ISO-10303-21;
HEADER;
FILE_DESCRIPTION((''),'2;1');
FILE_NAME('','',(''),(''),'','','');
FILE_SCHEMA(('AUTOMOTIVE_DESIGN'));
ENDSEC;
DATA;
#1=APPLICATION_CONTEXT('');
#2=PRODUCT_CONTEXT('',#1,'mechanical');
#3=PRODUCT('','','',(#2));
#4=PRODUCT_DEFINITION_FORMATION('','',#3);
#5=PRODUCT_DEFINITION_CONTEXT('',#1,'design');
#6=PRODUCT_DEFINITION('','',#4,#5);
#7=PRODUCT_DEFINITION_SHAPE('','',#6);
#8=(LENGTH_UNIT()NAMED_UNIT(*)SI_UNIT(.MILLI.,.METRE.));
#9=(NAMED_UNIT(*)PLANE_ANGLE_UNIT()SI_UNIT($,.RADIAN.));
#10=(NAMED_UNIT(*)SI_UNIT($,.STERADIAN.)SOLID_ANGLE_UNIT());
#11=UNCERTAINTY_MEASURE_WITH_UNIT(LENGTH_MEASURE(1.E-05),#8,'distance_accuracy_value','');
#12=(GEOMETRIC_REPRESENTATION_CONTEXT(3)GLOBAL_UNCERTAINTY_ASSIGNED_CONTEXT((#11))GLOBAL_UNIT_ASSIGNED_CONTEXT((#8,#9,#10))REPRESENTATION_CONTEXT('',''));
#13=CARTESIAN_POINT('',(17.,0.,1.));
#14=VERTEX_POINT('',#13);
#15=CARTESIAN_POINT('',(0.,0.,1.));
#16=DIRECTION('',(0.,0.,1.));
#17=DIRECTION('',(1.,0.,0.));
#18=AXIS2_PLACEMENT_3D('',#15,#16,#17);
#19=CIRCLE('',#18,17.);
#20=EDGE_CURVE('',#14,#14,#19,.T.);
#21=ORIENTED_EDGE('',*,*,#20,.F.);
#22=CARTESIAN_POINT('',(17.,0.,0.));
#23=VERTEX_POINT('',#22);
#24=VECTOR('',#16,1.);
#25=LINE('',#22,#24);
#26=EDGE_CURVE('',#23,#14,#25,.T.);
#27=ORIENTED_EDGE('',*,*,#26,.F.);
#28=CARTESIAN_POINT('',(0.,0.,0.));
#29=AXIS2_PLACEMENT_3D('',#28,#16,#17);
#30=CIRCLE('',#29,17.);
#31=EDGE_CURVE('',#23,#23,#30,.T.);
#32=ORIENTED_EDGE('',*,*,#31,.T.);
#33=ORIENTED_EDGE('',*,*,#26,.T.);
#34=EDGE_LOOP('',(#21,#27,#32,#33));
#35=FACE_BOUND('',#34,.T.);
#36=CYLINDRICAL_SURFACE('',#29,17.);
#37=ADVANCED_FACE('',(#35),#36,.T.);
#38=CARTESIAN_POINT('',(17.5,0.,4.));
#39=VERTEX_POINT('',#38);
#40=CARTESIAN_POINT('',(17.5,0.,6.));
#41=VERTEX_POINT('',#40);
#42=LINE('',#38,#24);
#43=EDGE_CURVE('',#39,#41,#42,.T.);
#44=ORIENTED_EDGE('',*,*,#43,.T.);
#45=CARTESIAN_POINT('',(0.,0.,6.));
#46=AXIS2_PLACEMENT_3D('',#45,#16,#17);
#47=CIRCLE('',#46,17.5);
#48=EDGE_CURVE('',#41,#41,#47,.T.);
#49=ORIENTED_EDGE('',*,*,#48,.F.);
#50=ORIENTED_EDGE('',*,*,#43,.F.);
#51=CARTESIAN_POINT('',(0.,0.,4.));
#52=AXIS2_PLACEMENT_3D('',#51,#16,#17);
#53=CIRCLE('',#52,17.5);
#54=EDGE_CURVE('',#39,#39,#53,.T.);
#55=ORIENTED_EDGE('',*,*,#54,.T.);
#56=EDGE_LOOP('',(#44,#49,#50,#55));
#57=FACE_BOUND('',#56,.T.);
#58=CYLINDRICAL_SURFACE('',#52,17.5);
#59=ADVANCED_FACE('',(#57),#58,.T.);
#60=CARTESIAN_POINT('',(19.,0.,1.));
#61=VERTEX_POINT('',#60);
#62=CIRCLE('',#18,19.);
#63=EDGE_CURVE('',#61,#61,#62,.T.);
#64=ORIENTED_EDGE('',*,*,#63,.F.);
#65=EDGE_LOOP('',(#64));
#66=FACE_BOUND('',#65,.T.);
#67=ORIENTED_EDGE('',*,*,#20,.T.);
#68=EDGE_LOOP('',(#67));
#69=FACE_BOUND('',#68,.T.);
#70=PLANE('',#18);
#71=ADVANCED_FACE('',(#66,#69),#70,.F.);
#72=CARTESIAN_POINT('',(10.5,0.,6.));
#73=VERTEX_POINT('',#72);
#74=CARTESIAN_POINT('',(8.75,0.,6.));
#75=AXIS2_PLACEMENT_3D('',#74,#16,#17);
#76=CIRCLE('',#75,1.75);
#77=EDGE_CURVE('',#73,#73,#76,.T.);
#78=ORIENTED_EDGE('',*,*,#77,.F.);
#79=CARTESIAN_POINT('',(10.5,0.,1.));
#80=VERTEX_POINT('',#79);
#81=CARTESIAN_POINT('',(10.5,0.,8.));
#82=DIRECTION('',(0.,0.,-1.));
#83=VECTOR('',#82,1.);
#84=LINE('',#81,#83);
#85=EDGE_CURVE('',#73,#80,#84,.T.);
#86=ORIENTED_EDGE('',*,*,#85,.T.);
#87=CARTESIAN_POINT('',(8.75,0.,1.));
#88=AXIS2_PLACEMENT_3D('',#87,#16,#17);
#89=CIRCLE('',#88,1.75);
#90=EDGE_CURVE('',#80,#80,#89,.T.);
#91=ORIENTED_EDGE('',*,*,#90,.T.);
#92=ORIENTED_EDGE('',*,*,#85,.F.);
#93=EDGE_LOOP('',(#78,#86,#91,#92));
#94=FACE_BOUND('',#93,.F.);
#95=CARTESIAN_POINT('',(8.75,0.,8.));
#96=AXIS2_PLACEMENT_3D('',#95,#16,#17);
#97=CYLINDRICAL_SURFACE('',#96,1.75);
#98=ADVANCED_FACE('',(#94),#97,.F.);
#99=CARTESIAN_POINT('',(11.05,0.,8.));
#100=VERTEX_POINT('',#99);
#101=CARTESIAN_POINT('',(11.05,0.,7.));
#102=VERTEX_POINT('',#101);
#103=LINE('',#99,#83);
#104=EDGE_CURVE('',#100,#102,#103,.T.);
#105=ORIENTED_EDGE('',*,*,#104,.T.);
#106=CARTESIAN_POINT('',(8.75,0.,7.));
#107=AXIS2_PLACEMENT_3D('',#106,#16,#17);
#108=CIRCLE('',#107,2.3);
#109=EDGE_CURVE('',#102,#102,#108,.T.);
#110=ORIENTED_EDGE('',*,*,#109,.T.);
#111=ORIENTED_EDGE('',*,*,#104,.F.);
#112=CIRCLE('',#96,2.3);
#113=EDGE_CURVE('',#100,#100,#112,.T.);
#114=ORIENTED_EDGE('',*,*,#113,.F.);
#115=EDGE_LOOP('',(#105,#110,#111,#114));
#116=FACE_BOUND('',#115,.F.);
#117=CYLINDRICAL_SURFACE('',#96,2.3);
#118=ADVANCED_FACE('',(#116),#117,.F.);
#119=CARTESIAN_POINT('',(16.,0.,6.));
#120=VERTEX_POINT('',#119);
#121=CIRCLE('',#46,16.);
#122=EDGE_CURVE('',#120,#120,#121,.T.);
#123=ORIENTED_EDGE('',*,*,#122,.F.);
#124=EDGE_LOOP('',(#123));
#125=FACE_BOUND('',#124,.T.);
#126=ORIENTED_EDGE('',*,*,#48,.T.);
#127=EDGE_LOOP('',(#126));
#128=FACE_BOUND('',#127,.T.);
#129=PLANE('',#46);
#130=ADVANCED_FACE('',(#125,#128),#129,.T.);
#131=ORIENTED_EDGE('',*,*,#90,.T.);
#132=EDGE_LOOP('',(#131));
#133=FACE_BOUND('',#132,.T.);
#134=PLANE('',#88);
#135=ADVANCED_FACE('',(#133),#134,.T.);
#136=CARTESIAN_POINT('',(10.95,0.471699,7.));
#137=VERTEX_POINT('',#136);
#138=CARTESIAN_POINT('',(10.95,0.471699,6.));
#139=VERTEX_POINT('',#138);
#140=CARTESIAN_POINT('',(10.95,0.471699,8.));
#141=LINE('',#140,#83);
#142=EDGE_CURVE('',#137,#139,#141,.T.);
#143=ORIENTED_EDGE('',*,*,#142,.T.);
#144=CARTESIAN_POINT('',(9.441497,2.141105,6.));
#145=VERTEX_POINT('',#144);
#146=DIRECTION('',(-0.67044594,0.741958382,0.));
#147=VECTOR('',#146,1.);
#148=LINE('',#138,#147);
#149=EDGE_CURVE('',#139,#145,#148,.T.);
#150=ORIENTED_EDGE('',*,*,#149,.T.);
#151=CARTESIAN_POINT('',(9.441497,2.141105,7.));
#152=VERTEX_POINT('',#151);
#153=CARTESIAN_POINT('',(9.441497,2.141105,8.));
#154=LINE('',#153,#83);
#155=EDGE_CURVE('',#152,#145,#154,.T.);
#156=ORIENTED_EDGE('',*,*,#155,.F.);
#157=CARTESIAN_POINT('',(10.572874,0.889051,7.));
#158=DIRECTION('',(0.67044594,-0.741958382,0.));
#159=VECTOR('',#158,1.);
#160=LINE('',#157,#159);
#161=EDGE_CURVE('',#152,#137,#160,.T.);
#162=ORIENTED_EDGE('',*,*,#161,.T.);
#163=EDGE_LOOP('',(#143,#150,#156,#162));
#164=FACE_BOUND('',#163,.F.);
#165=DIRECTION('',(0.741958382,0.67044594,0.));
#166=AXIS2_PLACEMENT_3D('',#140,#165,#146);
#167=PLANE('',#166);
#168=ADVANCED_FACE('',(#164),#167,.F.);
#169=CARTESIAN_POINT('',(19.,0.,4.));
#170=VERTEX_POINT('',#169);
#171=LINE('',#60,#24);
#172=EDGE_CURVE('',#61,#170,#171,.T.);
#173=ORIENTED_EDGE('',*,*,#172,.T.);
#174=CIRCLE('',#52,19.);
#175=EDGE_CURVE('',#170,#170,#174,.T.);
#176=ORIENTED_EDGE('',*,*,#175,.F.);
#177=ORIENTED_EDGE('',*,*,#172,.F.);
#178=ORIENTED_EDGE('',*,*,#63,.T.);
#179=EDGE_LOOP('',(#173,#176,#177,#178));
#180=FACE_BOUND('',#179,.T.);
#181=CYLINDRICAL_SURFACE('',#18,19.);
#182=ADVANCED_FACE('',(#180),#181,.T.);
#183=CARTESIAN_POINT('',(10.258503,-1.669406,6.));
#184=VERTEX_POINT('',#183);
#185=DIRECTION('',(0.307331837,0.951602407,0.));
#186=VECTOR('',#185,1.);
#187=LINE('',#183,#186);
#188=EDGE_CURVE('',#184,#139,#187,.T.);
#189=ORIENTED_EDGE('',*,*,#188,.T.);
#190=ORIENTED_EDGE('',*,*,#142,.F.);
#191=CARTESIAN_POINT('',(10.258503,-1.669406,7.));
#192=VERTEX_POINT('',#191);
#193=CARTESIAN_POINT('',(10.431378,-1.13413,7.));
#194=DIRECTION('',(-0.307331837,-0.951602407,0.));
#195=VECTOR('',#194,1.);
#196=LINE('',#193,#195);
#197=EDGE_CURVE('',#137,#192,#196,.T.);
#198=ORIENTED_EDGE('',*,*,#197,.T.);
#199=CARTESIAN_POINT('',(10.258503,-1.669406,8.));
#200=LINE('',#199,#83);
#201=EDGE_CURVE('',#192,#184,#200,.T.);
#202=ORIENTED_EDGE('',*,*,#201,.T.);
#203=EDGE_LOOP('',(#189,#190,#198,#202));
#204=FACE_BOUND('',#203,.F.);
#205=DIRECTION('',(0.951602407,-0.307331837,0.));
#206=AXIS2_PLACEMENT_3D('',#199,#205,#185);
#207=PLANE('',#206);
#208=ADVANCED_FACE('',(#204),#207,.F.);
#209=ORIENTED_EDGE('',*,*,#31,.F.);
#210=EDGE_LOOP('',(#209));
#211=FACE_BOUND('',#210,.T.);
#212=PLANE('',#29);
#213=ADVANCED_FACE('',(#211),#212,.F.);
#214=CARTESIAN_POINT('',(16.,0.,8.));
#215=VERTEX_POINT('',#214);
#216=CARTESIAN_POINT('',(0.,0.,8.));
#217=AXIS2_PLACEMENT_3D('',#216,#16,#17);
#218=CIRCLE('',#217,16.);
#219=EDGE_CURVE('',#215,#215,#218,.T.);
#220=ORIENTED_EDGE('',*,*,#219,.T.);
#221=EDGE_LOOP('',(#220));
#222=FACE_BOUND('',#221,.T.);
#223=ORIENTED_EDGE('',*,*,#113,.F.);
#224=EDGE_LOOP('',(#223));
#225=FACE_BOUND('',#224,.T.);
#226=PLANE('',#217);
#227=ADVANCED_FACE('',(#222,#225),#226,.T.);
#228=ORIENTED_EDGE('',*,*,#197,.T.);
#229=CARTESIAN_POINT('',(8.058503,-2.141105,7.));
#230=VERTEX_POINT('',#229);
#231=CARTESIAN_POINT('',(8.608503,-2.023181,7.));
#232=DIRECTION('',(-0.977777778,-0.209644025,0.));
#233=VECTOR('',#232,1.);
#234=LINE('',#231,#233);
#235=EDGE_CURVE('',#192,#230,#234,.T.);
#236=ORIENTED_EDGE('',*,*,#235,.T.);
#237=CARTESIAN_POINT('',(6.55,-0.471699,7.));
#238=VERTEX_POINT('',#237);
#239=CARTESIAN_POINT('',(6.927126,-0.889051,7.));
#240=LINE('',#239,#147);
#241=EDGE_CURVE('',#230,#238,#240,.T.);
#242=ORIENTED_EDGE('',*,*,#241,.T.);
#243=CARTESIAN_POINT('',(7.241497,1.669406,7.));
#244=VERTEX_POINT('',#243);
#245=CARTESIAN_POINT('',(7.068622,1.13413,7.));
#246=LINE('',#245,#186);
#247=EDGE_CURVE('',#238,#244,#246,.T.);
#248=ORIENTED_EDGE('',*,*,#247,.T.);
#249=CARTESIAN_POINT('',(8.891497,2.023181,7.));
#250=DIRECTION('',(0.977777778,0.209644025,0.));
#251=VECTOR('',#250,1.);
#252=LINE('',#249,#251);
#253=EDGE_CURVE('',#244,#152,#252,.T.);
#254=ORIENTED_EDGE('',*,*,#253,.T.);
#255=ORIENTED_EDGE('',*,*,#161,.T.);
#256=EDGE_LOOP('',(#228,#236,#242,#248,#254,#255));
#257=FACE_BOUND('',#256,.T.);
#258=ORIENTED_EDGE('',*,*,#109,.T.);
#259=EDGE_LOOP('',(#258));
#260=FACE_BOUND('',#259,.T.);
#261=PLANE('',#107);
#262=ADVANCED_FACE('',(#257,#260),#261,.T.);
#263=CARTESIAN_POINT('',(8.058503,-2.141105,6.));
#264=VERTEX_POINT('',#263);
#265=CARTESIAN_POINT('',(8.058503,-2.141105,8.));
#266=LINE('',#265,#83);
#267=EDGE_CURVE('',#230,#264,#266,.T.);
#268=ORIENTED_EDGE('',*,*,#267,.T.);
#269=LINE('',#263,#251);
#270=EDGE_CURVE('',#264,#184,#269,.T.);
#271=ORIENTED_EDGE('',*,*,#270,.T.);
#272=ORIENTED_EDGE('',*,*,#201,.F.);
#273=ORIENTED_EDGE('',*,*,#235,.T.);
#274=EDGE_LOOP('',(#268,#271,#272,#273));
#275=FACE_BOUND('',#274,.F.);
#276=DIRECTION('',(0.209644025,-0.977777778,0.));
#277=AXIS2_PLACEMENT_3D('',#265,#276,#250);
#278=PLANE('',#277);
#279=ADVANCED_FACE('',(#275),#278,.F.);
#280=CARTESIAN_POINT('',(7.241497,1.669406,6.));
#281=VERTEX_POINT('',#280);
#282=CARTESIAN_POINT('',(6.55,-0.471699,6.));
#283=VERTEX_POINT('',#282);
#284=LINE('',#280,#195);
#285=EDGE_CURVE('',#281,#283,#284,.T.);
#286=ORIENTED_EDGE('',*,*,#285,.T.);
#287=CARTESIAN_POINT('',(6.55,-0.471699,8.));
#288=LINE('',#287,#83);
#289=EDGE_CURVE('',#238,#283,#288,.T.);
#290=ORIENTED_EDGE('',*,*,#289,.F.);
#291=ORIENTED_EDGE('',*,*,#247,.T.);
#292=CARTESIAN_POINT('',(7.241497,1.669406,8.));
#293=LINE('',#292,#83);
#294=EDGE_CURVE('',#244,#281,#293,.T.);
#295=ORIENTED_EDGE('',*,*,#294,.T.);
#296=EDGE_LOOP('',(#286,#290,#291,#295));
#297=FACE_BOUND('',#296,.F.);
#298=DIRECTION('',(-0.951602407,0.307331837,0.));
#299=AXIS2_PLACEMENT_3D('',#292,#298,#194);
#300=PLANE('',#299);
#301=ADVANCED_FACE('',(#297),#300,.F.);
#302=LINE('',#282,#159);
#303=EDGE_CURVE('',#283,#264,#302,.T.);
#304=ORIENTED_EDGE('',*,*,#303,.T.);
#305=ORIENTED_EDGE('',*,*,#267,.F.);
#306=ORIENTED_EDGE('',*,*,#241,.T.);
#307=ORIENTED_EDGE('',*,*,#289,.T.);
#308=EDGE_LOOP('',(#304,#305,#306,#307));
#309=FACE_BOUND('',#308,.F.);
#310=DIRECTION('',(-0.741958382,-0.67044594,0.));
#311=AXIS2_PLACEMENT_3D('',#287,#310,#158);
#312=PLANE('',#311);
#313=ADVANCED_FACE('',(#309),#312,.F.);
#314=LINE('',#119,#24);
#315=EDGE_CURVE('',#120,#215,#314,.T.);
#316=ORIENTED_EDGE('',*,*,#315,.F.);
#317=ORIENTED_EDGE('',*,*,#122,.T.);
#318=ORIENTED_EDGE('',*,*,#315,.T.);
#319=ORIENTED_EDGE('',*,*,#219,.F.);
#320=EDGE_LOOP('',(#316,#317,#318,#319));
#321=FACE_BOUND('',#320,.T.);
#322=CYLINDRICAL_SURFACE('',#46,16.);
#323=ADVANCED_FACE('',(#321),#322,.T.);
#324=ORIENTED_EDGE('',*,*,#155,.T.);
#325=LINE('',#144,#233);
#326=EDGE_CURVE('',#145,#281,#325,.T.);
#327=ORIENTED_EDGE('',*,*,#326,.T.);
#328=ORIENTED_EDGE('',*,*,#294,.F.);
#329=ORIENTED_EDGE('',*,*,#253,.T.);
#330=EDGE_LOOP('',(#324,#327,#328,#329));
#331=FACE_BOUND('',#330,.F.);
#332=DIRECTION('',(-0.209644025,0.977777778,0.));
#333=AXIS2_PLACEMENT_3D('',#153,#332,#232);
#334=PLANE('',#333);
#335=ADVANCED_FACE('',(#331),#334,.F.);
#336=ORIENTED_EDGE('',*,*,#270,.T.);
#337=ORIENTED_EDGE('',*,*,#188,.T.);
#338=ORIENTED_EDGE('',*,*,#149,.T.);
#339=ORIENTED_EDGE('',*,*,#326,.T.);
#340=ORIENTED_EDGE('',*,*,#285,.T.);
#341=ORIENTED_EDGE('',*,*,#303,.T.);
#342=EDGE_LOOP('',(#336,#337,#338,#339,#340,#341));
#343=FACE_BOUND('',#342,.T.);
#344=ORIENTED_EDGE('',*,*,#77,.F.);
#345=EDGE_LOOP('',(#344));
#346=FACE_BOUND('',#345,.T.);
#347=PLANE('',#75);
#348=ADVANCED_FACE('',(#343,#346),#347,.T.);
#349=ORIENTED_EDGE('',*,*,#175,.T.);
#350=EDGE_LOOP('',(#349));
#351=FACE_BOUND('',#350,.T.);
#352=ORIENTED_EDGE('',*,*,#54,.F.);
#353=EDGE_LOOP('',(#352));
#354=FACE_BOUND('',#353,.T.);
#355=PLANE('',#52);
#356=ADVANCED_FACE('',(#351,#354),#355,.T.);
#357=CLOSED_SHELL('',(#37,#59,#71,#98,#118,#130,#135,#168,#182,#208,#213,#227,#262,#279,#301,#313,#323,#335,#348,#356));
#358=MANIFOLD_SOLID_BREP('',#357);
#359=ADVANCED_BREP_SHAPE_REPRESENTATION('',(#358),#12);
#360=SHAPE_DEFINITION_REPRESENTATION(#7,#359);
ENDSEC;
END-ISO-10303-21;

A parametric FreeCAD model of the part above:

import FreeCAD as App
import Part
import Sketcher
from FreeCAD import Vector
Q = App.Units.Quantity


def add_polygon(sketch, points):
    """Adds a closed chain of lines whose ends are joined by coincident constraints."""
    first, n = sketch.GeometryCount, len(points)
    for a, b in zip(points, points[1:] + points[:1]):
        sketch.addGeometry(Part.LineSegment(App.Vector(*a, 0), App.Vector(*b, 0)), False)
    for i in range(n):
        sketch.addConstraint(Sketcher.Constraint("Coincident", first + i, 2, first + (i + 1) % n, 1))

doc = App.newDocument("Part")
params = doc.addObject("Spreadsheet::Sheet", "Params")
for row, (alias, value) in enumerate([
    ("sketch1_width", "17 mm"),
    ("sketch1_width2", "2 mm"),
    ("sketch1_width3", "16 mm"),
    ("sketch1_height", "8 mm"),
    ("sketch1_height2", "1 mm"),
    ("revolution_angle", "360 deg"),
    ("sketch2_diameter", "3.5 mm"),
    ("pocket1_length", "7 mm"),
    ("sketch3_length", "2.25 mm"),
    ("pocket2_length", "2 mm"),
    ("sketch4_diameter", "4.6 mm"),
    ("pocket3_length", "1 mm"),
], start=1):
    params.set(f"A{row}", alias)
    params.set(f"B{row}", "=" + value)
    params.setAlias(f"B{row}", alias)

body = doc.addObject("PartDesign::Body", "Body")

sketch1 = body.newObject("Sketcher::SketchObject", "Sketch")
sketch1.AttachmentSupport = (doc.getObject("XZ_Plane"), [""])
sketch1.MapMode = "FlatFace"
add_polygon(sketch1, [(0, 8), (0, 0), (17, 0), (17, 1), (19, 1), (19, 4), (17.5, 4), (17.5, 6), (16, 6), (16, 8)])
sketch1.addConstraint([
    Sketcher.Constraint("Vertical", 0),
    Sketcher.Constraint("Horizontal", 1),
    Sketcher.Constraint("Vertical", 2),
    Sketcher.Constraint("Horizontal", 3),
    Sketcher.Constraint("Vertical", 4),
    Sketcher.Constraint("Horizontal", 5),
    Sketcher.Constraint("Vertical", 6),
    Sketcher.Constraint("Horizontal", 7),
    Sketcher.Constraint("Vertical", 8),
    Sketcher.Constraint("Horizontal", 9),
    Sketcher.Constraint("Coincident", 0, 2, -1, 1),
    Sketcher.Constraint("Equal", 5, 7),
    Sketcher.Constraint("Equal", 3, 6),
    Sketcher.Constraint("Equal", 6, 8),
    Sketcher.Constraint("DistanceX", 1, 1, 1, 2, Q("17 mm")),
    Sketcher.Constraint("DistanceX", 3, 1, 3, 2, Q("2 mm")),
    Sketcher.Constraint("DistanceX", 9, 2, 9, 1, Q("16 mm")),
    Sketcher.Constraint("DistanceY", 0, 2, 0, 1, Q("8 mm")),
    Sketcher.Constraint("DistanceY", 2, 1, 2, 2, Q("1 mm")),
])
sketch1.setExpression("Constraints[24]", "Params.sketch1_width")
sketch1.setExpression("Constraints[25]", "Params.sketch1_width2")
sketch1.setExpression("Constraints[26]", "Params.sketch1_width3")
sketch1.setExpression("Constraints[27]", "Params.sketch1_height")
sketch1.setExpression("Constraints[28]", "Params.sketch1_height2")
revolution = body.newObject("PartDesign::Revolution", "Revolution")
revolution.Profile = sketch1
revolution.ReferenceAxis = (sketch1, ["V_Axis"])
revolution.setExpression("Angle", "Params.revolution_angle")

sketch2 = body.newObject("Sketcher::SketchObject", "Sketch001")
sketch2.AttachmentSupport = (doc.getObject("XY_Plane"), [""])
sketch2.MapMode = "FlatFace"
sketch2.AttachmentOffset = App.Placement(Vector(0, 0, 8), App.Rotation())
sketch2.addGeometry(Part.Circle(Vector(8.8, 0, 0), Vector(0, 0, 1), 1.8), False)
sketch2.addConstraint([
    Sketcher.Constraint("PointOnObject", 0, 3, -1),
    Sketcher.Constraint("Diameter", 0, Q("3.5 mm")),
    Sketcher.Constraint("DistanceX", -1, 1, 0, 3, Q("8.75 mm")),
])
sketch2.setExpression("Constraints[1]", "Params.sketch2_diameter")
pocket1 = body.newObject("PartDesign::Pocket", "Pocket")
pocket1.Profile = sketch2
pocket1.setExpression("Length", "Params.pocket1_length")

sketch3 = body.newObject("Sketcher::SketchObject", "Sketch002")
sketch3.AttachmentSupport = (doc.getObject("XY_Plane"), [""])
sketch3.MapMode = "FlatFace"
sketch3.AttachmentOffset = App.Placement(Vector(0, 0, 8), App.Rotation())
add_polygon(sketch3, [(10.3, -1.7), (10.9, 0.5), (9.4, 2.1), (7.2, 1.7), (6.5, -0.5), (8.1, -2.1)])
sketch3.addConstraint([
    Sketcher.Constraint("Parallel", 0, 3),
    Sketcher.Constraint("Parallel", 1, 4),
    Sketcher.Constraint("Parallel", 2, 5),
    Sketcher.Constraint("Equal", 0, 1),
    Sketcher.Constraint("Equal", 1, 2),
    Sketcher.Constraint("Equal", 2, 3),
    Sketcher.Constraint("DistanceX", 2, 2, 1, 2, Q("2.2 mm")),
    Sketcher.Constraint("DistanceX", 3, 2, 0, 2, Q("4.4 mm")),
    Sketcher.Constraint("Distance", 0, Q("2.25 mm")),
    Sketcher.Constraint("DistanceX", -1, 1, 0, 2, Q("10.95 mm")),
    Sketcher.Constraint("DistanceY", -1, 1, 0, 2, Q("0.471699 mm")),
    Sketcher.Constraint("DistanceY", 3, 2, -1, 1, Q("0.471699 mm")),
])
sketch3.setExpression("Constraints[14]", "Params.sketch3_length")
pocket2 = body.newObject("PartDesign::Pocket", "Pocket001")
pocket2.Profile = sketch3
pocket2.setExpression("Length", "Params.pocket2_length")

sketch4 = body.newObject("Sketcher::SketchObject", "Sketch003")
sketch4.AttachmentSupport = (doc.getObject("XY_Plane"), [""])
sketch4.MapMode = "FlatFace"
sketch4.AttachmentOffset = App.Placement(Vector(0, 0, 8), App.Rotation())
sketch4.addGeometry(Part.Circle(Vector(8.8, 0, 0), Vector(0, 0, 1), 2.3), False)
sketch4.addConstraint([
    Sketcher.Constraint("PointOnObject", 0, 3, -1),
    Sketcher.Constraint("Diameter", 0, Q("4.6 mm")),
    Sketcher.Constraint("DistanceX", -1, 1, 0, 3, Q("8.75 mm")),
])
sketch4.setExpression("Constraints[1]", "Params.sketch4_diameter")
pocket3 = body.newObject("PartDesign::Pocket", "Pocket002")
pocket3.Profile = sketch4
pocket3.setExpression("Length", "Params.pocket3_length")

doc.recompute()
